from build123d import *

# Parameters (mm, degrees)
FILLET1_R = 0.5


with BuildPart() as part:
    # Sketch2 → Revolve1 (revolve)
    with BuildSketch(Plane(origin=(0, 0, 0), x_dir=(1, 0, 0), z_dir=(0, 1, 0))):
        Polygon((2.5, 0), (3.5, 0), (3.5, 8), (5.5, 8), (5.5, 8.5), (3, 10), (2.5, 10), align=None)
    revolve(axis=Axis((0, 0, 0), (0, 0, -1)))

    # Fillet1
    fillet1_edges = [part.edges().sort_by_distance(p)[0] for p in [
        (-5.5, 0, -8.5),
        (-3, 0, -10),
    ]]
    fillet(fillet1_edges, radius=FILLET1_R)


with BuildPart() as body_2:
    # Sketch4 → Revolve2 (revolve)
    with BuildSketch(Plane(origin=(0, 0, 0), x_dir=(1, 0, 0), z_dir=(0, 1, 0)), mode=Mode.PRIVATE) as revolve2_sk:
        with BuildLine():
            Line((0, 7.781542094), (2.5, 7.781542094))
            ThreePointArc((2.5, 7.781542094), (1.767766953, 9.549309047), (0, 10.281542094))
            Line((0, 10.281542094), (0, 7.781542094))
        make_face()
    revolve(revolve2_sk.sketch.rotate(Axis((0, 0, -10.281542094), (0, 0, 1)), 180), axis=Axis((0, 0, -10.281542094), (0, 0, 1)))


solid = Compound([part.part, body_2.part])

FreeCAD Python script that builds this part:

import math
import FreeCAD as App
import Part
import Sketcher


def edges_at(feature, points):
    """Names of the edges that pass closest to the given points."""
    edges = feature.Shape.Edges
    near = lambda p: min(range(len(edges)), key=lambda i: edges[i].distToShape(Part.Vertex(*p))[0])
    return sorted({f"Edge{near(p) + 1}" for p in points})

doc = App.newDocument("Part")
body = doc.addObject("PartDesign::Body", "Body")

# Sketch on XZ plane
sketch1 = doc.addObject("Sketcher::SketchObject", "Sketch")
body.addObject(sketch1)
sketch1.AttachmentSupport = (doc.XZ_Plane, [""])
sketch1.MapMode = "FlatFace"
sketch1.addGeometry(Part.LineSegment(App.Vector(2.5, 0, 0), App.Vector(3.5, 0, 0)), False)
sketch1.addGeometry(Part.LineSegment(App.Vector(3.5, 0, 0), App.Vector(3.5, -8, 0)), False)
sketch1.addGeometry(Part.LineSegment(App.Vector(3.5, -8, 0), App.Vector(5.5, -8, 0)), False)
sketch1.addGeometry(Part.LineSegment(App.Vector(5.5, -8, 0), App.Vector(5.5, -8.5, 0)), False)
sketch1.addGeometry(Part.LineSegment(App.Vector(5.5, -8.5, 0), App.Vector(3, -10, 0)), False)
sketch1.addGeometry(Part.LineSegment(App.Vector(3, -10, 0), App.Vector(2.5, -10, 0)), False)
sketch1.addGeometry(Part.LineSegment(App.Vector(2.5, -10, 0), App.Vector(2.5, 0, 0)), False)
sketch1.addConstraint(Sketcher.Constraint("Coincident", 0, 2, 1, 1))
sketch1.addConstraint(Sketcher.Constraint("Coincident", 1, 2, 2, 1))
sketch1.addConstraint(Sketcher.Constraint("Coincident", 2, 2, 3, 1))
sketch1.addConstraint(Sketcher.Constraint("Coincident", 3, 2, 4, 1))
sketch1.addConstraint(Sketcher.Constraint("Coincident", 4, 2, 5, 1))
sketch1.addConstraint(Sketcher.Constraint("Coincident", 5, 2, 6, 1))
sketch1.addConstraint(Sketcher.Constraint("Coincident", 6, 2, 0, 1))
sketch1.addConstraint(Sketcher.Constraint("Horizontal", 0))
sketch1.addConstraint(Sketcher.Constraint("Vertical", 1))
sketch1.addConstraint(Sketcher.Constraint("Horizontal", 2))
sketch1.addConstraint(Sketcher.Constraint("Vertical", 3))
sketch1.addConstraint(Sketcher.Constraint("Horizontal", 5))
sketch1.addConstraint(Sketcher.Constraint("Vertical", 6))
sketch1.addConstraint(Sketcher.Constraint("PointOnObject", 0, 2, -1))
sketch1.addConstraint(Sketcher.Constraint("Equal", 5, 3))
sketch1.addConstraint(Sketcher.Constraint("DistanceX", 0, 1, 0, 2, 1.0))
sketch1.addConstraint(Sketcher.Constraint("DistanceX", 2, 1, 2, 2, 2.0))
sketch1.addConstraint(Sketcher.Constraint("DistanceY", 1, 2, 1, 1, 8.0))
sketch1.addConstraint(Sketcher.Constraint("DistanceY", 6, 1, 6, 2, 10.0))
sketch1.addConstraint(Sketcher.Constraint("DistanceX", 5, 2, 5, 1, 0.5))
sketch1.addConstraint(Sketcher.Constraint("DistanceX", -1, 1, 4, 2, 3.0))
revolution = doc.addObject("PartDesign::Revolution", "Revolution")
body.addObject(revolution)
revolution.Profile = sketch1
revolution.ReferenceAxis = (sketch1, ["V_Axis"])
revolution.Angle = 360
doc.recompute()

fillet = doc.addObject("PartDesign::Fillet", "Fillet")
body.addObject(fillet)
fillet.Base = (revolution, edges_at(revolution, [(-5.5, 0, -8.5), (-3, 0, -10)]))
fillet.Radius = 0.5
body2 = doc.addObject("PartDesign::Body", "Body001")

# Sketch on XZ plane
sketch2 = doc.addObject("Sketcher::SketchObject", "Sketch001")
body2.addObject(sketch2)
sketch2.AttachmentSupport = (doc.getObject("XZ_Plane001"), [""])
sketch2.MapMode = "FlatFace"
sketch2.addGeometry(Part.LineSegment(App.Vector(0, -7.8, 0), App.Vector(2.5, -7.8, 0)), False)
sketch2.addGeometry(Part.ArcOfCircle(Part.Circle(App.Vector(0, -7.8, 0), App.Vector(0, 0, 1), 2.5), math.radians(-90), math.radians(0)), False)
sketch2.addGeometry(Part.LineSegment(App.Vector(0, -10.3, 0), App.Vector(0, -7.8, 0)), False)
sketch2.addConstraint(Sketcher.Constraint("Coincident", 0, 2, 1, 2))
sketch2.addConstraint(Sketcher.Constraint("Coincident", 1, 1, 2, 1))
sketch2.addConstraint(Sketcher.Constraint("Coincident", 2, 2, 0, 1))
sketch2.addConstraint(Sketcher.Constraint("Horizontal", 0))
sketch2.addConstraint(Sketcher.Constraint("Vertical", 2))
sketch2.addConstraint(Sketcher.Constraint("Coincident", 2, 2, 1, 3))
sketch2.addConstraint(Sketcher.Constraint("PointOnObject", 1, 3, -2))
sketch2.addConstraint(Sketcher.Constraint("Radius", 1, 2.5))
sketch2.addConstraint(Sketcher.Constraint("DistanceY", 1, 3, -1, 1, 7.781542))
revolution2 = doc.addObject("PartDesign::Revolution", "Revolution001")
body2.addObject(revolution2)
revolution2.Profile = sketch2
revolution2.ReferenceAxis = (sketch2, ["V_Axis"])
revolution2.Angle = 360

doc.recompute()
